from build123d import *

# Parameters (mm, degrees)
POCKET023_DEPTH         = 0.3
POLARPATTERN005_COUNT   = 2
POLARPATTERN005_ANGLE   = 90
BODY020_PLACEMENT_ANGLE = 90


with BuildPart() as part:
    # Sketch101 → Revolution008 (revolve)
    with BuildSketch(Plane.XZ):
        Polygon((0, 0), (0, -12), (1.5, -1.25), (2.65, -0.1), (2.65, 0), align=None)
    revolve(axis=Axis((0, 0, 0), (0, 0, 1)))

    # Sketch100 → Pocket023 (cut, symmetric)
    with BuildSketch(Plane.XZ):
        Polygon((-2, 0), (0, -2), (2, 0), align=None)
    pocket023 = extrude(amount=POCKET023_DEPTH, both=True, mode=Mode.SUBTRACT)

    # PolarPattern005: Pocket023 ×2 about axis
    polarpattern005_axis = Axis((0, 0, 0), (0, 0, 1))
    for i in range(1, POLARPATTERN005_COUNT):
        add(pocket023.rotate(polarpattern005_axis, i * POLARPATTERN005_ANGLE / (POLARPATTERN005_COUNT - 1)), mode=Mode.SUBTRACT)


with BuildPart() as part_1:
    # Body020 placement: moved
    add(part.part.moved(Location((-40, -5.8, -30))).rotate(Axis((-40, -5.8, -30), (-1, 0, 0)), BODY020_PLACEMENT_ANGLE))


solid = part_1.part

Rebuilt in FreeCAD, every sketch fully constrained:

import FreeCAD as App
import Part
import Sketcher

V = App.Vector
Q = App.Units.Quantity


def add_polygon(sketch, points):
    """Adds a closed chain of lines whose ends are joined by coincident constraints."""
    first, n = sketch.GeometryCount, len(points)
    for a, b in zip(points, points[1:] + points[:1]):
        sketch.addGeometry(Part.LineSegment(App.Vector(*a, 0), App.Vector(*b, 0)), False)
    for i in range(n):
        sketch.addConstraint(Sketcher.Constraint("Coincident", first + i, 2, first + (i + 1) % n, 1))

doc = App.newDocument("Part")
params = doc.addObject("Spreadsheet::Sheet", "Params")
for row, (alias, value) in enumerate([
    ("sketch1_height", "12 mm"),
    ("sketch1_height2", "0.1 mm"),
    ("sketch1_width", "2.65 mm"),
    ("revolution_angle", "360 deg"),
    ("sketch2_width", "4 mm"),
    ("pocket1_length", "0.6 mm"),
], start=1):
    params.set(f"A{row}", alias)
    params.set(f"B{row}", "=" + value)
    params.setAlias(f"B{row}", alias)

body = doc.addObject("PartDesign::Body", "Body")

sketch1 = body.newObject("Sketcher::SketchObject", "Sketch")
sketch1.AttachmentSupport = (doc.getObject("XZ_Plane"), [""])
sketch1.MapMode = "FlatFace"
add_polygon(sketch1, [(0, 0), (0, -12), (1.5, -1.25), (2.65, -0.1), (2.65, 0)])
sketch1.addConstraint([
    Sketcher.Constraint("Vertical", 0),
    Sketcher.Constraint("Vertical", 3),
    Sketcher.Constraint("Horizontal", 4),
    Sketcher.Constraint("Coincident", 4, 2, -1, 1),
    Sketcher.Constraint("DistanceY", 0, 2, 0, 1, Q("12 mm")),
    Sketcher.Constraint("Angle", 2, Q("45 deg")),
    Sketcher.Constraint("DistanceY", 3, 1, 3, 2, Q("0.1 mm")),
    Sketcher.Constraint("DistanceX", 4, 2, 4, 1, Q("2.65 mm")),
    Sketcher.Constraint("DistanceX", -1, 1, 1, 2, Q("1.5 mm")),
])
sketch1.setExpression("Constraints[9]", "Params.sketch1_height")
sketch1.setExpression("Constraints[11]", "Params.sketch1_height2")
sketch1.setExpression("Constraints[12]", "Params.sketch1_width")
revolution = body.newObject("PartDesign::Revolution", "Revolution")
revolution.Profile = sketch1
revolution.ReferenceAxis = (sketch1, ["V_Axis"])
revolution.setExpression("Angle", "Params.revolution_angle")

sketch2 = body.newObject("Sketcher::SketchObject", "Sketch001")
sketch2.AttachmentSupport = (doc.getObject("XZ_Plane"), [""])
sketch2.MapMode = "FlatFace"
add_polygon(sketch2, [(-2, 0), (0, -2), (2, 0)])
sketch2.addConstraint([
    Sketcher.Constraint("Horizontal", 2),
    Sketcher.Constraint("Symmetric", 1, 2, 2, 2, -1, 1),
    Sketcher.Constraint("PointOnObject", 0, 2, -2),
    Sketcher.Constraint("Perpendicular", 0, 1),
    Sketcher.Constraint("DistanceX", 2, 2, 2, 1, Q("4 mm")),
])
sketch2.setExpression("Constraints[7]", "Params.sketch2_width")
pocket1 = body.newObject("PartDesign::Pocket", "Pocket")
pocket1.Profile = sketch2
pocket1.setExpression("Length", "Params.pocket1_length")
pocket1.Midplane = True
doc.recompute()

polarpattern = body.newObject("PartDesign::PolarPattern", "PolarPattern")
polarpattern.Originals = [pocket1]
polarpattern.Axis = (doc.getObject("Z_Axis"), [""])
polarpattern.Angle = 90
polarpattern.Occurrences = 2
body.Tip = polarpattern
body2 = doc.addObject("PartDesign::Body", "Body001")
doc.recompute()

body.Placement = App.Placement(V(-40, -5.8, -30), App.Rotation(V(-1, 0, 0), 90))
boolean = body2.newObject("PartDesign::Boolean", "Boolean")
boolean.Type = "Fuse"
boolean.addObjects([body])

doc.recompute()
